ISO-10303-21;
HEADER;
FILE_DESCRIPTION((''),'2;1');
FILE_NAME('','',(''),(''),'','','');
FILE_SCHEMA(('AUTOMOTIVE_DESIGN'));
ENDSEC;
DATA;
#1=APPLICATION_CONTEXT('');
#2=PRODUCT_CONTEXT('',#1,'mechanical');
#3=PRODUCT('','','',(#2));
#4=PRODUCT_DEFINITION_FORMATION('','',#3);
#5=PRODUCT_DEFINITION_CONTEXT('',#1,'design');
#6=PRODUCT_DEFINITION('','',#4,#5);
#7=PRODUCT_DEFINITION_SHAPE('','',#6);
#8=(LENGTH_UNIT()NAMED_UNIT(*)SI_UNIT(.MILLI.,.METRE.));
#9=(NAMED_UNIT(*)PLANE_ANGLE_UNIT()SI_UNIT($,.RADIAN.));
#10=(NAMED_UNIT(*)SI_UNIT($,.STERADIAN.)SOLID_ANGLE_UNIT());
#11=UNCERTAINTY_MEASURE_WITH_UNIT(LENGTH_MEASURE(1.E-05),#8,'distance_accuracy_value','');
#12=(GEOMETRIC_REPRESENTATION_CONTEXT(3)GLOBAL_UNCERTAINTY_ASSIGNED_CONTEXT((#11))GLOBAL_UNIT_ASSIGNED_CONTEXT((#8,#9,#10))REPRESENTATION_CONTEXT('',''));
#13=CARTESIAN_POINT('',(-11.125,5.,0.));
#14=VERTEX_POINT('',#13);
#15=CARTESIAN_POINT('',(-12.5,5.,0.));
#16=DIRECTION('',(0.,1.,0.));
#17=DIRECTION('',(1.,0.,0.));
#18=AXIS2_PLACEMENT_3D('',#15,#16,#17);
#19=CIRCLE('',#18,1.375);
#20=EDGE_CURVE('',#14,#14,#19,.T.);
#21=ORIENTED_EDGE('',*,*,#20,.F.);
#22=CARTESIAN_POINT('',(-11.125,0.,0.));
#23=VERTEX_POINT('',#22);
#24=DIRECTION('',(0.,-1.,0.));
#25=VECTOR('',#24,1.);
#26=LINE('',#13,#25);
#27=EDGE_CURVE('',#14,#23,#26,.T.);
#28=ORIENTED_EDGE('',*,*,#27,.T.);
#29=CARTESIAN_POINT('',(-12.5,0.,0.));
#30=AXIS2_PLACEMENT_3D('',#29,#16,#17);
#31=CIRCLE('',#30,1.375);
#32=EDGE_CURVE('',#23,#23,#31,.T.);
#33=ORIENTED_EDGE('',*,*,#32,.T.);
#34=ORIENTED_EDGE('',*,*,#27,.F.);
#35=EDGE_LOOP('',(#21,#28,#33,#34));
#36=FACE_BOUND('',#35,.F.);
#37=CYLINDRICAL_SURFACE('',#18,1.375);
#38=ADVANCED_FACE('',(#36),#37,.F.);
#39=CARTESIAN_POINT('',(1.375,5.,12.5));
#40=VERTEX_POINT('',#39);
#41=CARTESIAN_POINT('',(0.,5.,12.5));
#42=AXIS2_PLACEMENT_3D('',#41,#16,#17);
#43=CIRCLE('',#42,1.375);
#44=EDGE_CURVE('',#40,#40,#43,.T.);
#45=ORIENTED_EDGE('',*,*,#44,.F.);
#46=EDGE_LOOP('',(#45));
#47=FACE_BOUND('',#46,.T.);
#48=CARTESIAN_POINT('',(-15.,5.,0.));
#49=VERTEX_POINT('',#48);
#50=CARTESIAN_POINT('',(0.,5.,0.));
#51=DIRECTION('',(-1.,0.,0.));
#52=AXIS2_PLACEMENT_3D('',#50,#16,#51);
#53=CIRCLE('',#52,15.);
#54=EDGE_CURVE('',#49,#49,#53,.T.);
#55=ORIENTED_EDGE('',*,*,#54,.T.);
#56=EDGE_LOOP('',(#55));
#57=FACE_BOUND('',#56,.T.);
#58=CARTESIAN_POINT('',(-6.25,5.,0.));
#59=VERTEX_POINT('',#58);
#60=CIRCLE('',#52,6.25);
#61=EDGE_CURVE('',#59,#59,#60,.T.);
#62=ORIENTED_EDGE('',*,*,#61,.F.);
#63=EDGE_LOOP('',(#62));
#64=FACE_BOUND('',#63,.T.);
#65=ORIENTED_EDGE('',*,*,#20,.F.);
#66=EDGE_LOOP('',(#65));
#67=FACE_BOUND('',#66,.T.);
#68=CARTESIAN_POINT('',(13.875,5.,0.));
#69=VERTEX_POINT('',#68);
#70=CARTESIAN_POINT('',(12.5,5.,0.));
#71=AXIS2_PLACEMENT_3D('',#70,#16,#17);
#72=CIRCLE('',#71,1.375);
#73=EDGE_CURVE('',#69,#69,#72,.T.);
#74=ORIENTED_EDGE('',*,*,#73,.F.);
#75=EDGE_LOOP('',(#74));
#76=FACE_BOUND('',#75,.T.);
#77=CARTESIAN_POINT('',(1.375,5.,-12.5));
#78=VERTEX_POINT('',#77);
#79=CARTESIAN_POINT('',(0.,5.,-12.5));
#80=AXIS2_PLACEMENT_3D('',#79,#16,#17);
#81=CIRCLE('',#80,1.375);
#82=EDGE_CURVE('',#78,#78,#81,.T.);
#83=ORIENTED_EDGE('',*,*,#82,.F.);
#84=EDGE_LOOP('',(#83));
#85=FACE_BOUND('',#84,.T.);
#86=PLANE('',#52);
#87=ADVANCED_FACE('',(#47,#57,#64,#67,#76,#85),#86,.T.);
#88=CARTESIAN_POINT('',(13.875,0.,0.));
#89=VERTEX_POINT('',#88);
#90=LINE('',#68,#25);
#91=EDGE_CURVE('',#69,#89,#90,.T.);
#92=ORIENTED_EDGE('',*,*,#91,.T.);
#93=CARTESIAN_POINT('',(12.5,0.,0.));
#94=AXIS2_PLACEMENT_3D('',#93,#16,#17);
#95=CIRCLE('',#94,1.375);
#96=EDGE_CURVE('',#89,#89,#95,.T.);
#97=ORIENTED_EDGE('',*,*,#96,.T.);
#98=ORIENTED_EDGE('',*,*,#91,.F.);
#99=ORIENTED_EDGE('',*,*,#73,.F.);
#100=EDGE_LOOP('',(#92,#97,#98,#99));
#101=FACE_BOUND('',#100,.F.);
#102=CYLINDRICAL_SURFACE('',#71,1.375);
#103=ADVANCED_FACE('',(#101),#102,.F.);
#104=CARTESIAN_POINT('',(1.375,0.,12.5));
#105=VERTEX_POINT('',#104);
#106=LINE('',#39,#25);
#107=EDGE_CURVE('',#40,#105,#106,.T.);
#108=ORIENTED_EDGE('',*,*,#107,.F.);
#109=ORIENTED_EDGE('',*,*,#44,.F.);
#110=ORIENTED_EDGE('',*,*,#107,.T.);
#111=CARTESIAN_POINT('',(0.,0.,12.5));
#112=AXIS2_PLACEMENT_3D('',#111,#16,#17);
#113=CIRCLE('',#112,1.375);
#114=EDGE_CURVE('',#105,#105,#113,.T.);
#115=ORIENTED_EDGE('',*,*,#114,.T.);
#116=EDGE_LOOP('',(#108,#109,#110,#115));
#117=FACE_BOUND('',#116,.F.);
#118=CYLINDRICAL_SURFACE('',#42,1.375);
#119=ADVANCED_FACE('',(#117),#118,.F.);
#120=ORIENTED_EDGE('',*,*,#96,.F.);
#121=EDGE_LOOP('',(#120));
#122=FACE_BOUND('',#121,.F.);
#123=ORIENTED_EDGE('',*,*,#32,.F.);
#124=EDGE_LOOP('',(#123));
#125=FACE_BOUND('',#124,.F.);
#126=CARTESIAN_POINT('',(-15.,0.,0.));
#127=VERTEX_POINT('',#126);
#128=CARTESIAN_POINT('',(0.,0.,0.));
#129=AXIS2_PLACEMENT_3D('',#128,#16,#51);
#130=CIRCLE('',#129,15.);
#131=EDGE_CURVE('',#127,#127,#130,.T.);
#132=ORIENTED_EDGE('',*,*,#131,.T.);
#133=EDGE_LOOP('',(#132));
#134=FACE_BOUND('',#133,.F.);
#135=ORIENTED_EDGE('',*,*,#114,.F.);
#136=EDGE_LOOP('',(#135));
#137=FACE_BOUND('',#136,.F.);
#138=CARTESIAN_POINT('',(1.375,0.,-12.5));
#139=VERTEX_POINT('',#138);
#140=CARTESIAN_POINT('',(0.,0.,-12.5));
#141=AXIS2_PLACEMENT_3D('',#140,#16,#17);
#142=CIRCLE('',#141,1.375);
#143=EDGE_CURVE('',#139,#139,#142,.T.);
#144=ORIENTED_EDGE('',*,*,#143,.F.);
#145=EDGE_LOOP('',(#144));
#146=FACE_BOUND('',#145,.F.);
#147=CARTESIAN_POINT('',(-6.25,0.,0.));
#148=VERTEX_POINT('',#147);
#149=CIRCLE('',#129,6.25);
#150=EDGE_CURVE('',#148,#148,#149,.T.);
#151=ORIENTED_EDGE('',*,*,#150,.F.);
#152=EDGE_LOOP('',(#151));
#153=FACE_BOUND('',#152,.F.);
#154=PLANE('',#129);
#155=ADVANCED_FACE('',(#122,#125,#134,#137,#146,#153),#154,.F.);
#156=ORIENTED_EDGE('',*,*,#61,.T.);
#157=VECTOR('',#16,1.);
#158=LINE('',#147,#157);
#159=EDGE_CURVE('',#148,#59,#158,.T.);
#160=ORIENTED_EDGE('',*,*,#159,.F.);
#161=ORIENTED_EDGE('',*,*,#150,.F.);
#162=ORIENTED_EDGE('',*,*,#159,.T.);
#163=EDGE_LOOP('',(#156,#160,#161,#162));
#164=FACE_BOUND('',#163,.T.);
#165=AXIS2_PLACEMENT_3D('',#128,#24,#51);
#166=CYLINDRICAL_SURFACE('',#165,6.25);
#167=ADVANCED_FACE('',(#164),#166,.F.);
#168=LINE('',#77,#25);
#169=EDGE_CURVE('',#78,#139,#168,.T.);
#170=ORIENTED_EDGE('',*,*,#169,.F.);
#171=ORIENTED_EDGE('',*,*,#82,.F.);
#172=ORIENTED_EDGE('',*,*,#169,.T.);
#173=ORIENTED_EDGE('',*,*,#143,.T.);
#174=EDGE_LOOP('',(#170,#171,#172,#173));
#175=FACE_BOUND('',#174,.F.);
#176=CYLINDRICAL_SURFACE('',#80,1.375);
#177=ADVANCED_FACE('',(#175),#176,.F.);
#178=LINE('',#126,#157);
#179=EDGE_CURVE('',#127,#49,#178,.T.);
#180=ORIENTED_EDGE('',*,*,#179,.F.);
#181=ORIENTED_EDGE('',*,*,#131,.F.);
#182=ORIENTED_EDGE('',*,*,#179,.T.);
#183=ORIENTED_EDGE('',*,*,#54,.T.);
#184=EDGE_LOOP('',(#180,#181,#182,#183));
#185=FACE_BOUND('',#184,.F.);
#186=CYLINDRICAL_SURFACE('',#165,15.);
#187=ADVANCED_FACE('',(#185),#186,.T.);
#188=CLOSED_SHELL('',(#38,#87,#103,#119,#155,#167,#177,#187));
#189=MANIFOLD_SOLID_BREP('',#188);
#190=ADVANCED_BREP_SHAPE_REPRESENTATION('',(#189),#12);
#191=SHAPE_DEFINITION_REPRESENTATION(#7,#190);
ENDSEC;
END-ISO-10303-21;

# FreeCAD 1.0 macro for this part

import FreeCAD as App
import Part
import Sketcher

V = App.Vector

doc = App.newDocument("Part")
body = doc.addObject("PartDesign::Body", "Body")

sketch1 = body.newObject("Sketcher::SketchObject", "Sketch")
sketch1.AttachmentSupport = (doc.getObject("XZ_Plane"), [""])
sketch1.MapMode = "FlatFace"
sketch1.addGeometry([
    Part.Circle(V(0, 0, 0), V(0, 0, 1), 15),
    Part.Circle(V(0, 0, 0), V(0, 0, 1), 6),
], False)
sketch1.addConstraint([
    Sketcher.Constraint("Coincident", 0, 3, -1, 1),
    Sketcher.Constraint("Coincident", 1, 3, -1, 1),
    Sketcher.Constraint("Diameter", 0, 30.0),
    Sketcher.Constraint("Diameter", 1, 12.5),
])
pad1 = body.newObject("PartDesign::Pad", "Pad")
pad1.Profile = sketch1
pad1.Length = 5
pad1.Reversed = True

sketch2 = body.newObject("Sketcher::SketchObject", "Sketch001")
sketch2.AttachmentSupport = (doc.getObject("XZ_Plane"), [""])
sketch2.MapMode = "FlatFace"
sketch2.AttachmentOffset = App.Placement(V(0, 0, -5), App.Rotation())
sketch2.addGeometry([
    Part.Circle(V(0, -12.5, 0), V(0, 0, 1), 1.4),
    Part.Circle(V(-12.5, 0, 0), V(0, 0, 1), 1.4),
    Part.Circle(V(0, 12.5, 0), V(0, 0, 1), 1.4),
    Part.Circle(V(12.5, 0, 0), V(0, 0, 1), 1.4),
], False)
sketch2.addConstraint([
    Sketcher.Constraint("Equal", 0, 1),
    Sketcher.Constraint("Equal", 1, 2),
    Sketcher.Constraint("Equal", 2, 3),
    Sketcher.Constraint("Symmetric", 0, 3, 2, 3, -1, 1),
    Sketcher.Constraint("Symmetric", 1, 3, 3, 3, -1, 1),
    Sketcher.Constraint("PointOnObject", 0, 3, -2),
    Sketcher.Constraint("PointOnObject", 1, 3, -1),
    Sketcher.Constraint("Diameter", 0, 2.75),
    Sketcher.Constraint("DistanceY", 0, 3, 2, 3, 25.0),
    Sketcher.Constraint("DistanceX", 1, 3, 3, 3, 25.0),
])
pocket1 = body.newObject("PartDesign::Pocket", "Pocket")
pocket1.Profile = sketch2
pocket1.Length = 5
pocket1.Reversed = True

doc.recompute()
